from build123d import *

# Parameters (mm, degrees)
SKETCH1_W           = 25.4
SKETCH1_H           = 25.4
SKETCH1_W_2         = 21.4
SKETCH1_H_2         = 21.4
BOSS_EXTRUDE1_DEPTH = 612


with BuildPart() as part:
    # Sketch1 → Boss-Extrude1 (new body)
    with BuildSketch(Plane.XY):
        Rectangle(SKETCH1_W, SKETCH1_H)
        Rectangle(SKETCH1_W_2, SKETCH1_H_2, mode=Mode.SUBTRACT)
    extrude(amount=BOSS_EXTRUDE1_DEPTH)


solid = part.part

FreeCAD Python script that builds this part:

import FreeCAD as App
import Part
import Sketcher
Q = App.Units.Quantity

doc = App.newDocument("Part")
body = doc.addObject("PartDesign::Body", "Body")

# Sketch on XY plane
sketch1 = body.newObject("Sketcher::SketchObject", "Sketch")
sketch1.AttachmentSupport = (doc.getObject("XY_Plane"), [""])
sketch1.MapMode = "FlatFace"
sketch1.addGeometry(Part.LineSegment(App.Vector(-13, 13, 0), App.Vector(-13, -13, 0)), False)
sketch1.addGeometry(Part.LineSegment(App.Vector(-13, -13, 0), App.Vector(13, -13, 0)), False)
sketch1.addGeometry(Part.LineSegment(App.Vector(13, -13, 0), App.Vector(13, 13, 0)), False)
sketch1.addGeometry(Part.LineSegment(App.Vector(13, 13, 0), App.Vector(-13, 13, 0)), False)
sketch1.addGeometry(Part.LineSegment(App.Vector(11, -11, 0), App.Vector(-11, -11, 0)), False)
sketch1.addGeometry(Part.LineSegment(App.Vector(-11, -11, 0), App.Vector(-11, 11, 0)), False)
sketch1.addGeometry(Part.LineSegment(App.Vector(-11, 11, 0), App.Vector(11, 11, 0)), False)
sketch1.addGeometry(Part.LineSegment(App.Vector(11, 11, 0), App.Vector(11, -11, 0)), False)
sketch1.addConstraint(Sketcher.Constraint("Coincident", 0, 2, 1, 1))
sketch1.addConstraint(Sketcher.Constraint("Coincident", 1, 2, 2, 1))
sketch1.addConstraint(Sketcher.Constraint("Coincident", 2, 2, 3, 1))
sketch1.addConstraint(Sketcher.Constraint("Coincident", 3, 2, 0, 1))
sketch1.addConstraint(Sketcher.Constraint("Coincident", 4, 2, 5, 1))
sketch1.addConstraint(Sketcher.Constraint("Coincident", 5, 2, 6, 1))
sketch1.addConstraint(Sketcher.Constraint("Coincident", 6, 2, 7, 1))
sketch1.addConstraint(Sketcher.Constraint("Coincident", 7, 2, 4, 1))
sketch1.addConstraint(Sketcher.Constraint("Vertical", 0))
sketch1.addConstraint(Sketcher.Constraint("Horizontal", 1))
sketch1.addConstraint(Sketcher.Constraint("Vertical", 2))
sketch1.addConstraint(Sketcher.Constraint("Horizontal", 3))
sketch1.addConstraint(Sketcher.Constraint("Horizontal", 4))
sketch1.addConstraint(Sketcher.Constraint("Vertical", 5))
sketch1.addConstraint(Sketcher.Constraint("Horizontal", 6))
sketch1.addConstraint(Sketcher.Constraint("Vertical", 7))
sketch1.addConstraint(Sketcher.Constraint("Symmetric", 0, 2, 2, 2, -1, 1))
sketch1.addConstraint(Sketcher.Constraint("Symmetric", 4, 2, 6, 2, -1, 1))
sketch1.addConstraint(Sketcher.Constraint("Equal", 3, 0))
sketch1.addConstraint(Sketcher.Constraint("Equal", 6, 5))
sketch1.addConstraint(Sketcher.Constraint("DistanceX", 1, 1, 1, 2, Q("25.4 mm")))
sketch1.addConstraint(Sketcher.Constraint("DistanceX", 4, 2, 4, 1, Q("21.4 mm")))
pad1 = body.newObject("PartDesign::Pad", "Pad")
pad1.Profile = sketch1
pad1.Length = 612

doc.recompute()
